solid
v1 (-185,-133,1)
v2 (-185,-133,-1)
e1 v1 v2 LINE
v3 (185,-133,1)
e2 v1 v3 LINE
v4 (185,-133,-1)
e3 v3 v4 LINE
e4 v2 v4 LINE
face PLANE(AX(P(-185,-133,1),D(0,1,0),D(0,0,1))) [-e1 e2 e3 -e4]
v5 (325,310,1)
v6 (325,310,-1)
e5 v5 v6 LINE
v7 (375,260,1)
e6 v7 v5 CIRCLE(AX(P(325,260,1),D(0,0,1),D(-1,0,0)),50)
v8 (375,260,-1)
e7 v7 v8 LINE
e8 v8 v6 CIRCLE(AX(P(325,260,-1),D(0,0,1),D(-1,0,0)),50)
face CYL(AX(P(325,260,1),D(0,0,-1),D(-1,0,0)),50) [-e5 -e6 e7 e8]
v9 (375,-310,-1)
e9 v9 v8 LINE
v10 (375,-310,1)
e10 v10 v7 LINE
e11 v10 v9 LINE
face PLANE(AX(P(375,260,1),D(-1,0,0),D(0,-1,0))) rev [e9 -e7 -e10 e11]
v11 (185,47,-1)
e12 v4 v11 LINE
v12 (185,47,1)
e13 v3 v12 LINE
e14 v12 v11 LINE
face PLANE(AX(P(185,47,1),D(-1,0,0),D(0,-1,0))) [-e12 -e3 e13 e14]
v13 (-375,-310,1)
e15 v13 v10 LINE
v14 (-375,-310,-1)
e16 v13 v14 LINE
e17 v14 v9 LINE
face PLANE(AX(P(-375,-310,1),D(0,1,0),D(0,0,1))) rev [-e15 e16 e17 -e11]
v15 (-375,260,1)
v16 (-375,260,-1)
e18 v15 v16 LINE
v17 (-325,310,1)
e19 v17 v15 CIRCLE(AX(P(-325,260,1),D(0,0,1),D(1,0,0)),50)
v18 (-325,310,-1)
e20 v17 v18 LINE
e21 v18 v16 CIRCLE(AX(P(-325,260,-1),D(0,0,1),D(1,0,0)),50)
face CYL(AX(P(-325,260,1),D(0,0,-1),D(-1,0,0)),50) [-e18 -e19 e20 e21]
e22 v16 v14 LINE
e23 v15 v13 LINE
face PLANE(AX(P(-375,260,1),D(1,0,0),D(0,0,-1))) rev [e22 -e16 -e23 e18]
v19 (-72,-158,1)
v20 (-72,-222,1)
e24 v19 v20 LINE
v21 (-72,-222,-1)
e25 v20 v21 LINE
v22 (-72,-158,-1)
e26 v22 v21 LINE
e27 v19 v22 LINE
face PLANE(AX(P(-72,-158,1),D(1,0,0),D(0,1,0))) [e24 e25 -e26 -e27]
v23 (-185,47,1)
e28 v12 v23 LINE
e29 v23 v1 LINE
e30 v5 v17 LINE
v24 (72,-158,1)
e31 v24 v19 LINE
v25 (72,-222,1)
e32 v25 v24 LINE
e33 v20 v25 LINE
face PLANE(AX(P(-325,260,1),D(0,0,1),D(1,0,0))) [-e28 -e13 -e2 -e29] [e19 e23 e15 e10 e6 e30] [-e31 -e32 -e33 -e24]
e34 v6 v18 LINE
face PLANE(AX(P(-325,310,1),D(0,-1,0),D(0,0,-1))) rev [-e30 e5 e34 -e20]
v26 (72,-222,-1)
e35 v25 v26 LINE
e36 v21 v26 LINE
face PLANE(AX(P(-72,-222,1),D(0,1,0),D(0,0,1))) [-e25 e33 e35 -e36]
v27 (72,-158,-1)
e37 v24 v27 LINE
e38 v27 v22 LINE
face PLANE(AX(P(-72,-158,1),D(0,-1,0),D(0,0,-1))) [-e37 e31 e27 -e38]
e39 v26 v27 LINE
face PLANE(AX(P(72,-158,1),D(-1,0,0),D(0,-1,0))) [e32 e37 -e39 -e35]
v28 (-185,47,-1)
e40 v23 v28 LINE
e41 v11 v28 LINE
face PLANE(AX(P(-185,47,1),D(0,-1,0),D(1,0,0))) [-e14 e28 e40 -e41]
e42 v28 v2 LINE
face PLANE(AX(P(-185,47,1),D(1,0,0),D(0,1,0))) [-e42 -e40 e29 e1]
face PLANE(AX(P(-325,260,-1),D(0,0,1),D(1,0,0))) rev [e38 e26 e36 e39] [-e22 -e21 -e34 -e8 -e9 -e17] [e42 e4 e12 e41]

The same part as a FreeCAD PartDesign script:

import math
import FreeCAD as App
import Part
import Sketcher

V = App.Vector


def add_polygon(sketch, points):
    """Adds a closed chain of lines whose ends are joined by coincident constraints."""
    first, n = sketch.GeometryCount, len(points)
    for a, b in zip(points, points[1:] + points[:1]):
        sketch.addGeometry(Part.LineSegment(App.Vector(*a, 0), App.Vector(*b, 0)), False)
    for i in range(n):
        sketch.addConstraint(Sketcher.Constraint("Coincident", first + i, 2, first + (i + 1) % n, 1))

doc = App.newDocument("Part")
body = doc.addObject("PartDesign::Body", "Body")

sketch1 = body.newObject("Sketcher::SketchObject", "Sketch")
sketch1.AttachmentSupport = (doc.getObject("XY_Plane"), [""])
sketch1.MapMode = "FlatFace"
sketch1.addGeometry(Part.LineSegment(V(325, 310, 0), V(-325, 310, 0)), False)
sketch1.addGeometry(Part.ArcOfCircle(Part.Circle(V(-325, 260, 0), V(0, 0, 1), 50), math.radians(90), math.radians(180)), False)
sketch1.addGeometry(Part.LineSegment(V(-375, 260, 0), V(-375, -310, 0)), False)
sketch1.addGeometry(Part.LineSegment(V(-375, -310, 0), V(375, -310, 0)), False)
sketch1.addGeometry(Part.LineSegment(V(375, -310, 0), V(375, 260, 0)), False)
sketch1.addGeometry(Part.ArcOfCircle(Part.Circle(V(325, 260, 0), V(0, 0, 1), 50), math.radians(0), math.radians(90)), False)
add_polygon(sketch1, [(-72, -222), (-72, -158), (72, -158), (72, -222)])
add_polygon(sketch1, [(-185, -133), (-185, 47), (185, 47), (185, -133)])
sketch1.addConstraint(Sketcher.Constraint("Tangent", 0, 2, 1, 1))
sketch1.addConstraint(Sketcher.Constraint("Tangent", 1, 2, 2, 1))
sketch1.addConstraint(Sketcher.Constraint("Coincident", 2, 2, 3, 1))
sketch1.addConstraint(Sketcher.Constraint("Coincident", 3, 2, 4, 1))
sketch1.addConstraint(Sketcher.Constraint("Tangent", 4, 2, 5, 1))
sketch1.addConstraint(Sketcher.Constraint("Tangent", 5, 2, 0, 1))
sketch1.addConstraint(Sketcher.Constraint("Horizontal", 0))
sketch1.addConstraint(Sketcher.Constraint("Vertical", 2))
sketch1.addConstraint(Sketcher.Constraint("Horizontal", 3))
sketch1.addConstraint(Sketcher.Constraint("Vertical", 4))
sketch1.addConstraint(Sketcher.Constraint("Vertical", 6))
sketch1.addConstraint(Sketcher.Constraint("Horizontal", 7))
sketch1.addConstraint(Sketcher.Constraint("Vertical", 8))
sketch1.addConstraint(Sketcher.Constraint("Horizontal", 9))
sketch1.addConstraint(Sketcher.Constraint("Vertical", 10))
sketch1.addConstraint(Sketcher.Constraint("Horizontal", 11))
sketch1.addConstraint(Sketcher.Constraint("Vertical", 12))
sketch1.addConstraint(Sketcher.Constraint("Horizontal", 13))
sketch1.addConstraint(Sketcher.Constraint("Equal", 1, 5))
sketch1.addConstraint(Sketcher.Constraint("Radius", 1, 50.0))
sketch1.addConstraint(Sketcher.Constraint("DistanceX", 0, 2, 0, 1, 650.0))
sketch1.addConstraint(Sketcher.Constraint("DistanceX", 7, 1, 7, 2, 144.0))
sketch1.addConstraint(Sketcher.Constraint("DistanceX", 11, 1, 11, 2, 370.0))
sketch1.addConstraint(Sketcher.Constraint("DistanceY", 2, 2, 2, 1, 570.0))
sketch1.addConstraint(Sketcher.Constraint("DistanceY", 6, 1, 6, 2, 64.0))
sketch1.addConstraint(Sketcher.Constraint("DistanceY", 10, 1, 10, 2, 180.0))
sketch1.addConstraint(Sketcher.Constraint("DistanceX", 1, 3, -1, 1, 325.0))
sketch1.addConstraint(Sketcher.Constraint("DistanceY", -1, 1, 1, 3, 260.0))
sketch1.addConstraint(Sketcher.Constraint("DistanceX", 6, 2, -1, 1, 72.0))
sketch1.addConstraint(Sketcher.Constraint("DistanceY", 6, 2, -1, 1, 158.0))
sketch1.addConstraint(Sketcher.Constraint("DistanceX", 10, 2, -1, 1, 185.0))
sketch1.addConstraint(Sketcher.Constraint("DistanceY", -1, 1, 10, 2, 47.0))
pad1 = body.newObject("PartDesign::Pad", "Pad")
pad1.Profile = sketch1
pad1.Length = 2
pad1.Midplane = True

doc.recompute()
